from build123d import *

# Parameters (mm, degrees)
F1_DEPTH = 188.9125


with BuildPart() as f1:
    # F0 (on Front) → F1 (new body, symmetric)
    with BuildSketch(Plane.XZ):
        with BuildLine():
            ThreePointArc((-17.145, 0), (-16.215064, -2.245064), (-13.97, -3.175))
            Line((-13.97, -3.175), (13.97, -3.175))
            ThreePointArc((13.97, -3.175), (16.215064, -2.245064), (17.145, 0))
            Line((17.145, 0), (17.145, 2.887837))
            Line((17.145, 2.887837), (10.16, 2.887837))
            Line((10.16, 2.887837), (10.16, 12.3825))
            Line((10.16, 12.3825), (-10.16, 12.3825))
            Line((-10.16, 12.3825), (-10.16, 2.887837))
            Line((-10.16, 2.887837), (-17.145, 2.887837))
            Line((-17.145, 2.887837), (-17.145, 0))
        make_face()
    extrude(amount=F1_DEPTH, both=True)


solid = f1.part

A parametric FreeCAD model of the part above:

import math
import FreeCAD as App
import Part
import Sketcher

V = App.Vector
Q = App.Units.Quantity

doc = App.newDocument("Part")
body = doc.addObject("PartDesign::Body", "Body")

# Sketch on XZ plane
sketch1 = body.newObject("Sketcher::SketchObject", "Sketch")
sketch1.AttachmentSupport = (doc.getObject("XZ_Plane"), [""])
sketch1.MapMode = "FlatFace"
sketch1.addGeometry(Part.ArcOfCircle(Part.Circle(V(-14, 0, 0), V(0, 0, 1), 3.2), math.radians(-180), math.radians(-90)), False)
sketch1.addGeometry(Part.LineSegment(V(-14, -3.2, 0), V(14, -3.2, 0)), False)
sketch1.addGeometry(Part.ArcOfCircle(Part.Circle(V(14, 0, 0), V(0, 0, 1), 3.2), math.radians(-90), math.radians(0)), False)
sketch1.addGeometry(Part.LineSegment(V(17.1, 0, 0), V(17.1, 2.9, 0)), False)
sketch1.addGeometry(Part.LineSegment(V(17.1, 2.9, 0), V(10.2, 2.9, 0)), False)
sketch1.addGeometry(Part.LineSegment(V(10.2, 2.9, 0), V(10.2, 12.4, 0)), False)
sketch1.addGeometry(Part.LineSegment(V(10.2, 12.4, 0), V(-10.2, 12.4, 0)), False)
sketch1.addGeometry(Part.LineSegment(V(-10.2, 12.4, 0), V(-10.2, 2.9, 0)), False)
sketch1.addGeometry(Part.LineSegment(V(-10.2, 2.9, 0), V(-17.1, 2.9, 0)), False)
sketch1.addGeometry(Part.LineSegment(V(-17.1, 2.9, 0), V(-17.1, 0, 0)), False)
sketch1.addConstraint(Sketcher.Constraint("Tangent", 0, 2, 1, 1))
sketch1.addConstraint(Sketcher.Constraint("Tangent", 1, 2, 2, 1))
sketch1.addConstraint(Sketcher.Constraint("Tangent", 2, 2, 3, 1))
sketch1.addConstraint(Sketcher.Constraint("Coincident", 3, 2, 4, 1))
sketch1.addConstraint(Sketcher.Constraint("Coincident", 4, 2, 5, 1))
sketch1.addConstraint(Sketcher.Constraint("Coincident", 5, 2, 6, 1))
sketch1.addConstraint(Sketcher.Constraint("Coincident", 6, 2, 7, 1))
sketch1.addConstraint(Sketcher.Constraint("Coincident", 7, 2, 8, 1))
sketch1.addConstraint(Sketcher.Constraint("Coincident", 8, 2, 9, 1))
sketch1.addConstraint(Sketcher.Constraint("Tangent", 9, 2, 0, 1))
sketch1.addConstraint(Sketcher.Constraint("Horizontal", 1))
sketch1.addConstraint(Sketcher.Constraint("Vertical", 3))
sketch1.addConstraint(Sketcher.Constraint("Horizontal", 4))
sketch1.addConstraint(Sketcher.Constraint("Vertical", 5))
sketch1.addConstraint(Sketcher.Constraint("Horizontal", 6))
sketch1.addConstraint(Sketcher.Constraint("Vertical", 7))
sketch1.addConstraint(Sketcher.Constraint("Horizontal", 8))
sketch1.addConstraint(Sketcher.Constraint("Vertical", 9))
sketch1.addConstraint(Sketcher.Constraint("Equal", 0, 2))
sketch1.addConstraint(Sketcher.Constraint("Symmetric", 0, 3, 2, 3, -1, 1))
sketch1.addConstraint(Sketcher.Constraint("Symmetric", 4, 2, 7, 2, -2))
sketch1.addConstraint(Sketcher.Constraint("DistanceX", 1, 1, 1, 2, Q("1.1 in")))
sketch1.addConstraint(Sketcher.Constraint("DistanceX", 6, 2, 6, 1, Q("0.8 in")))
sketch1.addConstraint(Sketcher.Constraint("Radius", 0, Q("0.125 in")))
sketch1.addConstraint(Sketcher.Constraint("DistanceY", -1, 1, 5, 2, Q("0.4875 in")))
sketch1.addConstraint(Sketcher.Constraint("DistanceY", 3, 1, 3, 2, Q("2.887837 mm")))
pad1 = body.newObject("PartDesign::Pad", "Pad")
pad1.Profile = sketch1
pad1.Length = Q("14.875 in")
pad1.Midplane = True

doc.recompute()
